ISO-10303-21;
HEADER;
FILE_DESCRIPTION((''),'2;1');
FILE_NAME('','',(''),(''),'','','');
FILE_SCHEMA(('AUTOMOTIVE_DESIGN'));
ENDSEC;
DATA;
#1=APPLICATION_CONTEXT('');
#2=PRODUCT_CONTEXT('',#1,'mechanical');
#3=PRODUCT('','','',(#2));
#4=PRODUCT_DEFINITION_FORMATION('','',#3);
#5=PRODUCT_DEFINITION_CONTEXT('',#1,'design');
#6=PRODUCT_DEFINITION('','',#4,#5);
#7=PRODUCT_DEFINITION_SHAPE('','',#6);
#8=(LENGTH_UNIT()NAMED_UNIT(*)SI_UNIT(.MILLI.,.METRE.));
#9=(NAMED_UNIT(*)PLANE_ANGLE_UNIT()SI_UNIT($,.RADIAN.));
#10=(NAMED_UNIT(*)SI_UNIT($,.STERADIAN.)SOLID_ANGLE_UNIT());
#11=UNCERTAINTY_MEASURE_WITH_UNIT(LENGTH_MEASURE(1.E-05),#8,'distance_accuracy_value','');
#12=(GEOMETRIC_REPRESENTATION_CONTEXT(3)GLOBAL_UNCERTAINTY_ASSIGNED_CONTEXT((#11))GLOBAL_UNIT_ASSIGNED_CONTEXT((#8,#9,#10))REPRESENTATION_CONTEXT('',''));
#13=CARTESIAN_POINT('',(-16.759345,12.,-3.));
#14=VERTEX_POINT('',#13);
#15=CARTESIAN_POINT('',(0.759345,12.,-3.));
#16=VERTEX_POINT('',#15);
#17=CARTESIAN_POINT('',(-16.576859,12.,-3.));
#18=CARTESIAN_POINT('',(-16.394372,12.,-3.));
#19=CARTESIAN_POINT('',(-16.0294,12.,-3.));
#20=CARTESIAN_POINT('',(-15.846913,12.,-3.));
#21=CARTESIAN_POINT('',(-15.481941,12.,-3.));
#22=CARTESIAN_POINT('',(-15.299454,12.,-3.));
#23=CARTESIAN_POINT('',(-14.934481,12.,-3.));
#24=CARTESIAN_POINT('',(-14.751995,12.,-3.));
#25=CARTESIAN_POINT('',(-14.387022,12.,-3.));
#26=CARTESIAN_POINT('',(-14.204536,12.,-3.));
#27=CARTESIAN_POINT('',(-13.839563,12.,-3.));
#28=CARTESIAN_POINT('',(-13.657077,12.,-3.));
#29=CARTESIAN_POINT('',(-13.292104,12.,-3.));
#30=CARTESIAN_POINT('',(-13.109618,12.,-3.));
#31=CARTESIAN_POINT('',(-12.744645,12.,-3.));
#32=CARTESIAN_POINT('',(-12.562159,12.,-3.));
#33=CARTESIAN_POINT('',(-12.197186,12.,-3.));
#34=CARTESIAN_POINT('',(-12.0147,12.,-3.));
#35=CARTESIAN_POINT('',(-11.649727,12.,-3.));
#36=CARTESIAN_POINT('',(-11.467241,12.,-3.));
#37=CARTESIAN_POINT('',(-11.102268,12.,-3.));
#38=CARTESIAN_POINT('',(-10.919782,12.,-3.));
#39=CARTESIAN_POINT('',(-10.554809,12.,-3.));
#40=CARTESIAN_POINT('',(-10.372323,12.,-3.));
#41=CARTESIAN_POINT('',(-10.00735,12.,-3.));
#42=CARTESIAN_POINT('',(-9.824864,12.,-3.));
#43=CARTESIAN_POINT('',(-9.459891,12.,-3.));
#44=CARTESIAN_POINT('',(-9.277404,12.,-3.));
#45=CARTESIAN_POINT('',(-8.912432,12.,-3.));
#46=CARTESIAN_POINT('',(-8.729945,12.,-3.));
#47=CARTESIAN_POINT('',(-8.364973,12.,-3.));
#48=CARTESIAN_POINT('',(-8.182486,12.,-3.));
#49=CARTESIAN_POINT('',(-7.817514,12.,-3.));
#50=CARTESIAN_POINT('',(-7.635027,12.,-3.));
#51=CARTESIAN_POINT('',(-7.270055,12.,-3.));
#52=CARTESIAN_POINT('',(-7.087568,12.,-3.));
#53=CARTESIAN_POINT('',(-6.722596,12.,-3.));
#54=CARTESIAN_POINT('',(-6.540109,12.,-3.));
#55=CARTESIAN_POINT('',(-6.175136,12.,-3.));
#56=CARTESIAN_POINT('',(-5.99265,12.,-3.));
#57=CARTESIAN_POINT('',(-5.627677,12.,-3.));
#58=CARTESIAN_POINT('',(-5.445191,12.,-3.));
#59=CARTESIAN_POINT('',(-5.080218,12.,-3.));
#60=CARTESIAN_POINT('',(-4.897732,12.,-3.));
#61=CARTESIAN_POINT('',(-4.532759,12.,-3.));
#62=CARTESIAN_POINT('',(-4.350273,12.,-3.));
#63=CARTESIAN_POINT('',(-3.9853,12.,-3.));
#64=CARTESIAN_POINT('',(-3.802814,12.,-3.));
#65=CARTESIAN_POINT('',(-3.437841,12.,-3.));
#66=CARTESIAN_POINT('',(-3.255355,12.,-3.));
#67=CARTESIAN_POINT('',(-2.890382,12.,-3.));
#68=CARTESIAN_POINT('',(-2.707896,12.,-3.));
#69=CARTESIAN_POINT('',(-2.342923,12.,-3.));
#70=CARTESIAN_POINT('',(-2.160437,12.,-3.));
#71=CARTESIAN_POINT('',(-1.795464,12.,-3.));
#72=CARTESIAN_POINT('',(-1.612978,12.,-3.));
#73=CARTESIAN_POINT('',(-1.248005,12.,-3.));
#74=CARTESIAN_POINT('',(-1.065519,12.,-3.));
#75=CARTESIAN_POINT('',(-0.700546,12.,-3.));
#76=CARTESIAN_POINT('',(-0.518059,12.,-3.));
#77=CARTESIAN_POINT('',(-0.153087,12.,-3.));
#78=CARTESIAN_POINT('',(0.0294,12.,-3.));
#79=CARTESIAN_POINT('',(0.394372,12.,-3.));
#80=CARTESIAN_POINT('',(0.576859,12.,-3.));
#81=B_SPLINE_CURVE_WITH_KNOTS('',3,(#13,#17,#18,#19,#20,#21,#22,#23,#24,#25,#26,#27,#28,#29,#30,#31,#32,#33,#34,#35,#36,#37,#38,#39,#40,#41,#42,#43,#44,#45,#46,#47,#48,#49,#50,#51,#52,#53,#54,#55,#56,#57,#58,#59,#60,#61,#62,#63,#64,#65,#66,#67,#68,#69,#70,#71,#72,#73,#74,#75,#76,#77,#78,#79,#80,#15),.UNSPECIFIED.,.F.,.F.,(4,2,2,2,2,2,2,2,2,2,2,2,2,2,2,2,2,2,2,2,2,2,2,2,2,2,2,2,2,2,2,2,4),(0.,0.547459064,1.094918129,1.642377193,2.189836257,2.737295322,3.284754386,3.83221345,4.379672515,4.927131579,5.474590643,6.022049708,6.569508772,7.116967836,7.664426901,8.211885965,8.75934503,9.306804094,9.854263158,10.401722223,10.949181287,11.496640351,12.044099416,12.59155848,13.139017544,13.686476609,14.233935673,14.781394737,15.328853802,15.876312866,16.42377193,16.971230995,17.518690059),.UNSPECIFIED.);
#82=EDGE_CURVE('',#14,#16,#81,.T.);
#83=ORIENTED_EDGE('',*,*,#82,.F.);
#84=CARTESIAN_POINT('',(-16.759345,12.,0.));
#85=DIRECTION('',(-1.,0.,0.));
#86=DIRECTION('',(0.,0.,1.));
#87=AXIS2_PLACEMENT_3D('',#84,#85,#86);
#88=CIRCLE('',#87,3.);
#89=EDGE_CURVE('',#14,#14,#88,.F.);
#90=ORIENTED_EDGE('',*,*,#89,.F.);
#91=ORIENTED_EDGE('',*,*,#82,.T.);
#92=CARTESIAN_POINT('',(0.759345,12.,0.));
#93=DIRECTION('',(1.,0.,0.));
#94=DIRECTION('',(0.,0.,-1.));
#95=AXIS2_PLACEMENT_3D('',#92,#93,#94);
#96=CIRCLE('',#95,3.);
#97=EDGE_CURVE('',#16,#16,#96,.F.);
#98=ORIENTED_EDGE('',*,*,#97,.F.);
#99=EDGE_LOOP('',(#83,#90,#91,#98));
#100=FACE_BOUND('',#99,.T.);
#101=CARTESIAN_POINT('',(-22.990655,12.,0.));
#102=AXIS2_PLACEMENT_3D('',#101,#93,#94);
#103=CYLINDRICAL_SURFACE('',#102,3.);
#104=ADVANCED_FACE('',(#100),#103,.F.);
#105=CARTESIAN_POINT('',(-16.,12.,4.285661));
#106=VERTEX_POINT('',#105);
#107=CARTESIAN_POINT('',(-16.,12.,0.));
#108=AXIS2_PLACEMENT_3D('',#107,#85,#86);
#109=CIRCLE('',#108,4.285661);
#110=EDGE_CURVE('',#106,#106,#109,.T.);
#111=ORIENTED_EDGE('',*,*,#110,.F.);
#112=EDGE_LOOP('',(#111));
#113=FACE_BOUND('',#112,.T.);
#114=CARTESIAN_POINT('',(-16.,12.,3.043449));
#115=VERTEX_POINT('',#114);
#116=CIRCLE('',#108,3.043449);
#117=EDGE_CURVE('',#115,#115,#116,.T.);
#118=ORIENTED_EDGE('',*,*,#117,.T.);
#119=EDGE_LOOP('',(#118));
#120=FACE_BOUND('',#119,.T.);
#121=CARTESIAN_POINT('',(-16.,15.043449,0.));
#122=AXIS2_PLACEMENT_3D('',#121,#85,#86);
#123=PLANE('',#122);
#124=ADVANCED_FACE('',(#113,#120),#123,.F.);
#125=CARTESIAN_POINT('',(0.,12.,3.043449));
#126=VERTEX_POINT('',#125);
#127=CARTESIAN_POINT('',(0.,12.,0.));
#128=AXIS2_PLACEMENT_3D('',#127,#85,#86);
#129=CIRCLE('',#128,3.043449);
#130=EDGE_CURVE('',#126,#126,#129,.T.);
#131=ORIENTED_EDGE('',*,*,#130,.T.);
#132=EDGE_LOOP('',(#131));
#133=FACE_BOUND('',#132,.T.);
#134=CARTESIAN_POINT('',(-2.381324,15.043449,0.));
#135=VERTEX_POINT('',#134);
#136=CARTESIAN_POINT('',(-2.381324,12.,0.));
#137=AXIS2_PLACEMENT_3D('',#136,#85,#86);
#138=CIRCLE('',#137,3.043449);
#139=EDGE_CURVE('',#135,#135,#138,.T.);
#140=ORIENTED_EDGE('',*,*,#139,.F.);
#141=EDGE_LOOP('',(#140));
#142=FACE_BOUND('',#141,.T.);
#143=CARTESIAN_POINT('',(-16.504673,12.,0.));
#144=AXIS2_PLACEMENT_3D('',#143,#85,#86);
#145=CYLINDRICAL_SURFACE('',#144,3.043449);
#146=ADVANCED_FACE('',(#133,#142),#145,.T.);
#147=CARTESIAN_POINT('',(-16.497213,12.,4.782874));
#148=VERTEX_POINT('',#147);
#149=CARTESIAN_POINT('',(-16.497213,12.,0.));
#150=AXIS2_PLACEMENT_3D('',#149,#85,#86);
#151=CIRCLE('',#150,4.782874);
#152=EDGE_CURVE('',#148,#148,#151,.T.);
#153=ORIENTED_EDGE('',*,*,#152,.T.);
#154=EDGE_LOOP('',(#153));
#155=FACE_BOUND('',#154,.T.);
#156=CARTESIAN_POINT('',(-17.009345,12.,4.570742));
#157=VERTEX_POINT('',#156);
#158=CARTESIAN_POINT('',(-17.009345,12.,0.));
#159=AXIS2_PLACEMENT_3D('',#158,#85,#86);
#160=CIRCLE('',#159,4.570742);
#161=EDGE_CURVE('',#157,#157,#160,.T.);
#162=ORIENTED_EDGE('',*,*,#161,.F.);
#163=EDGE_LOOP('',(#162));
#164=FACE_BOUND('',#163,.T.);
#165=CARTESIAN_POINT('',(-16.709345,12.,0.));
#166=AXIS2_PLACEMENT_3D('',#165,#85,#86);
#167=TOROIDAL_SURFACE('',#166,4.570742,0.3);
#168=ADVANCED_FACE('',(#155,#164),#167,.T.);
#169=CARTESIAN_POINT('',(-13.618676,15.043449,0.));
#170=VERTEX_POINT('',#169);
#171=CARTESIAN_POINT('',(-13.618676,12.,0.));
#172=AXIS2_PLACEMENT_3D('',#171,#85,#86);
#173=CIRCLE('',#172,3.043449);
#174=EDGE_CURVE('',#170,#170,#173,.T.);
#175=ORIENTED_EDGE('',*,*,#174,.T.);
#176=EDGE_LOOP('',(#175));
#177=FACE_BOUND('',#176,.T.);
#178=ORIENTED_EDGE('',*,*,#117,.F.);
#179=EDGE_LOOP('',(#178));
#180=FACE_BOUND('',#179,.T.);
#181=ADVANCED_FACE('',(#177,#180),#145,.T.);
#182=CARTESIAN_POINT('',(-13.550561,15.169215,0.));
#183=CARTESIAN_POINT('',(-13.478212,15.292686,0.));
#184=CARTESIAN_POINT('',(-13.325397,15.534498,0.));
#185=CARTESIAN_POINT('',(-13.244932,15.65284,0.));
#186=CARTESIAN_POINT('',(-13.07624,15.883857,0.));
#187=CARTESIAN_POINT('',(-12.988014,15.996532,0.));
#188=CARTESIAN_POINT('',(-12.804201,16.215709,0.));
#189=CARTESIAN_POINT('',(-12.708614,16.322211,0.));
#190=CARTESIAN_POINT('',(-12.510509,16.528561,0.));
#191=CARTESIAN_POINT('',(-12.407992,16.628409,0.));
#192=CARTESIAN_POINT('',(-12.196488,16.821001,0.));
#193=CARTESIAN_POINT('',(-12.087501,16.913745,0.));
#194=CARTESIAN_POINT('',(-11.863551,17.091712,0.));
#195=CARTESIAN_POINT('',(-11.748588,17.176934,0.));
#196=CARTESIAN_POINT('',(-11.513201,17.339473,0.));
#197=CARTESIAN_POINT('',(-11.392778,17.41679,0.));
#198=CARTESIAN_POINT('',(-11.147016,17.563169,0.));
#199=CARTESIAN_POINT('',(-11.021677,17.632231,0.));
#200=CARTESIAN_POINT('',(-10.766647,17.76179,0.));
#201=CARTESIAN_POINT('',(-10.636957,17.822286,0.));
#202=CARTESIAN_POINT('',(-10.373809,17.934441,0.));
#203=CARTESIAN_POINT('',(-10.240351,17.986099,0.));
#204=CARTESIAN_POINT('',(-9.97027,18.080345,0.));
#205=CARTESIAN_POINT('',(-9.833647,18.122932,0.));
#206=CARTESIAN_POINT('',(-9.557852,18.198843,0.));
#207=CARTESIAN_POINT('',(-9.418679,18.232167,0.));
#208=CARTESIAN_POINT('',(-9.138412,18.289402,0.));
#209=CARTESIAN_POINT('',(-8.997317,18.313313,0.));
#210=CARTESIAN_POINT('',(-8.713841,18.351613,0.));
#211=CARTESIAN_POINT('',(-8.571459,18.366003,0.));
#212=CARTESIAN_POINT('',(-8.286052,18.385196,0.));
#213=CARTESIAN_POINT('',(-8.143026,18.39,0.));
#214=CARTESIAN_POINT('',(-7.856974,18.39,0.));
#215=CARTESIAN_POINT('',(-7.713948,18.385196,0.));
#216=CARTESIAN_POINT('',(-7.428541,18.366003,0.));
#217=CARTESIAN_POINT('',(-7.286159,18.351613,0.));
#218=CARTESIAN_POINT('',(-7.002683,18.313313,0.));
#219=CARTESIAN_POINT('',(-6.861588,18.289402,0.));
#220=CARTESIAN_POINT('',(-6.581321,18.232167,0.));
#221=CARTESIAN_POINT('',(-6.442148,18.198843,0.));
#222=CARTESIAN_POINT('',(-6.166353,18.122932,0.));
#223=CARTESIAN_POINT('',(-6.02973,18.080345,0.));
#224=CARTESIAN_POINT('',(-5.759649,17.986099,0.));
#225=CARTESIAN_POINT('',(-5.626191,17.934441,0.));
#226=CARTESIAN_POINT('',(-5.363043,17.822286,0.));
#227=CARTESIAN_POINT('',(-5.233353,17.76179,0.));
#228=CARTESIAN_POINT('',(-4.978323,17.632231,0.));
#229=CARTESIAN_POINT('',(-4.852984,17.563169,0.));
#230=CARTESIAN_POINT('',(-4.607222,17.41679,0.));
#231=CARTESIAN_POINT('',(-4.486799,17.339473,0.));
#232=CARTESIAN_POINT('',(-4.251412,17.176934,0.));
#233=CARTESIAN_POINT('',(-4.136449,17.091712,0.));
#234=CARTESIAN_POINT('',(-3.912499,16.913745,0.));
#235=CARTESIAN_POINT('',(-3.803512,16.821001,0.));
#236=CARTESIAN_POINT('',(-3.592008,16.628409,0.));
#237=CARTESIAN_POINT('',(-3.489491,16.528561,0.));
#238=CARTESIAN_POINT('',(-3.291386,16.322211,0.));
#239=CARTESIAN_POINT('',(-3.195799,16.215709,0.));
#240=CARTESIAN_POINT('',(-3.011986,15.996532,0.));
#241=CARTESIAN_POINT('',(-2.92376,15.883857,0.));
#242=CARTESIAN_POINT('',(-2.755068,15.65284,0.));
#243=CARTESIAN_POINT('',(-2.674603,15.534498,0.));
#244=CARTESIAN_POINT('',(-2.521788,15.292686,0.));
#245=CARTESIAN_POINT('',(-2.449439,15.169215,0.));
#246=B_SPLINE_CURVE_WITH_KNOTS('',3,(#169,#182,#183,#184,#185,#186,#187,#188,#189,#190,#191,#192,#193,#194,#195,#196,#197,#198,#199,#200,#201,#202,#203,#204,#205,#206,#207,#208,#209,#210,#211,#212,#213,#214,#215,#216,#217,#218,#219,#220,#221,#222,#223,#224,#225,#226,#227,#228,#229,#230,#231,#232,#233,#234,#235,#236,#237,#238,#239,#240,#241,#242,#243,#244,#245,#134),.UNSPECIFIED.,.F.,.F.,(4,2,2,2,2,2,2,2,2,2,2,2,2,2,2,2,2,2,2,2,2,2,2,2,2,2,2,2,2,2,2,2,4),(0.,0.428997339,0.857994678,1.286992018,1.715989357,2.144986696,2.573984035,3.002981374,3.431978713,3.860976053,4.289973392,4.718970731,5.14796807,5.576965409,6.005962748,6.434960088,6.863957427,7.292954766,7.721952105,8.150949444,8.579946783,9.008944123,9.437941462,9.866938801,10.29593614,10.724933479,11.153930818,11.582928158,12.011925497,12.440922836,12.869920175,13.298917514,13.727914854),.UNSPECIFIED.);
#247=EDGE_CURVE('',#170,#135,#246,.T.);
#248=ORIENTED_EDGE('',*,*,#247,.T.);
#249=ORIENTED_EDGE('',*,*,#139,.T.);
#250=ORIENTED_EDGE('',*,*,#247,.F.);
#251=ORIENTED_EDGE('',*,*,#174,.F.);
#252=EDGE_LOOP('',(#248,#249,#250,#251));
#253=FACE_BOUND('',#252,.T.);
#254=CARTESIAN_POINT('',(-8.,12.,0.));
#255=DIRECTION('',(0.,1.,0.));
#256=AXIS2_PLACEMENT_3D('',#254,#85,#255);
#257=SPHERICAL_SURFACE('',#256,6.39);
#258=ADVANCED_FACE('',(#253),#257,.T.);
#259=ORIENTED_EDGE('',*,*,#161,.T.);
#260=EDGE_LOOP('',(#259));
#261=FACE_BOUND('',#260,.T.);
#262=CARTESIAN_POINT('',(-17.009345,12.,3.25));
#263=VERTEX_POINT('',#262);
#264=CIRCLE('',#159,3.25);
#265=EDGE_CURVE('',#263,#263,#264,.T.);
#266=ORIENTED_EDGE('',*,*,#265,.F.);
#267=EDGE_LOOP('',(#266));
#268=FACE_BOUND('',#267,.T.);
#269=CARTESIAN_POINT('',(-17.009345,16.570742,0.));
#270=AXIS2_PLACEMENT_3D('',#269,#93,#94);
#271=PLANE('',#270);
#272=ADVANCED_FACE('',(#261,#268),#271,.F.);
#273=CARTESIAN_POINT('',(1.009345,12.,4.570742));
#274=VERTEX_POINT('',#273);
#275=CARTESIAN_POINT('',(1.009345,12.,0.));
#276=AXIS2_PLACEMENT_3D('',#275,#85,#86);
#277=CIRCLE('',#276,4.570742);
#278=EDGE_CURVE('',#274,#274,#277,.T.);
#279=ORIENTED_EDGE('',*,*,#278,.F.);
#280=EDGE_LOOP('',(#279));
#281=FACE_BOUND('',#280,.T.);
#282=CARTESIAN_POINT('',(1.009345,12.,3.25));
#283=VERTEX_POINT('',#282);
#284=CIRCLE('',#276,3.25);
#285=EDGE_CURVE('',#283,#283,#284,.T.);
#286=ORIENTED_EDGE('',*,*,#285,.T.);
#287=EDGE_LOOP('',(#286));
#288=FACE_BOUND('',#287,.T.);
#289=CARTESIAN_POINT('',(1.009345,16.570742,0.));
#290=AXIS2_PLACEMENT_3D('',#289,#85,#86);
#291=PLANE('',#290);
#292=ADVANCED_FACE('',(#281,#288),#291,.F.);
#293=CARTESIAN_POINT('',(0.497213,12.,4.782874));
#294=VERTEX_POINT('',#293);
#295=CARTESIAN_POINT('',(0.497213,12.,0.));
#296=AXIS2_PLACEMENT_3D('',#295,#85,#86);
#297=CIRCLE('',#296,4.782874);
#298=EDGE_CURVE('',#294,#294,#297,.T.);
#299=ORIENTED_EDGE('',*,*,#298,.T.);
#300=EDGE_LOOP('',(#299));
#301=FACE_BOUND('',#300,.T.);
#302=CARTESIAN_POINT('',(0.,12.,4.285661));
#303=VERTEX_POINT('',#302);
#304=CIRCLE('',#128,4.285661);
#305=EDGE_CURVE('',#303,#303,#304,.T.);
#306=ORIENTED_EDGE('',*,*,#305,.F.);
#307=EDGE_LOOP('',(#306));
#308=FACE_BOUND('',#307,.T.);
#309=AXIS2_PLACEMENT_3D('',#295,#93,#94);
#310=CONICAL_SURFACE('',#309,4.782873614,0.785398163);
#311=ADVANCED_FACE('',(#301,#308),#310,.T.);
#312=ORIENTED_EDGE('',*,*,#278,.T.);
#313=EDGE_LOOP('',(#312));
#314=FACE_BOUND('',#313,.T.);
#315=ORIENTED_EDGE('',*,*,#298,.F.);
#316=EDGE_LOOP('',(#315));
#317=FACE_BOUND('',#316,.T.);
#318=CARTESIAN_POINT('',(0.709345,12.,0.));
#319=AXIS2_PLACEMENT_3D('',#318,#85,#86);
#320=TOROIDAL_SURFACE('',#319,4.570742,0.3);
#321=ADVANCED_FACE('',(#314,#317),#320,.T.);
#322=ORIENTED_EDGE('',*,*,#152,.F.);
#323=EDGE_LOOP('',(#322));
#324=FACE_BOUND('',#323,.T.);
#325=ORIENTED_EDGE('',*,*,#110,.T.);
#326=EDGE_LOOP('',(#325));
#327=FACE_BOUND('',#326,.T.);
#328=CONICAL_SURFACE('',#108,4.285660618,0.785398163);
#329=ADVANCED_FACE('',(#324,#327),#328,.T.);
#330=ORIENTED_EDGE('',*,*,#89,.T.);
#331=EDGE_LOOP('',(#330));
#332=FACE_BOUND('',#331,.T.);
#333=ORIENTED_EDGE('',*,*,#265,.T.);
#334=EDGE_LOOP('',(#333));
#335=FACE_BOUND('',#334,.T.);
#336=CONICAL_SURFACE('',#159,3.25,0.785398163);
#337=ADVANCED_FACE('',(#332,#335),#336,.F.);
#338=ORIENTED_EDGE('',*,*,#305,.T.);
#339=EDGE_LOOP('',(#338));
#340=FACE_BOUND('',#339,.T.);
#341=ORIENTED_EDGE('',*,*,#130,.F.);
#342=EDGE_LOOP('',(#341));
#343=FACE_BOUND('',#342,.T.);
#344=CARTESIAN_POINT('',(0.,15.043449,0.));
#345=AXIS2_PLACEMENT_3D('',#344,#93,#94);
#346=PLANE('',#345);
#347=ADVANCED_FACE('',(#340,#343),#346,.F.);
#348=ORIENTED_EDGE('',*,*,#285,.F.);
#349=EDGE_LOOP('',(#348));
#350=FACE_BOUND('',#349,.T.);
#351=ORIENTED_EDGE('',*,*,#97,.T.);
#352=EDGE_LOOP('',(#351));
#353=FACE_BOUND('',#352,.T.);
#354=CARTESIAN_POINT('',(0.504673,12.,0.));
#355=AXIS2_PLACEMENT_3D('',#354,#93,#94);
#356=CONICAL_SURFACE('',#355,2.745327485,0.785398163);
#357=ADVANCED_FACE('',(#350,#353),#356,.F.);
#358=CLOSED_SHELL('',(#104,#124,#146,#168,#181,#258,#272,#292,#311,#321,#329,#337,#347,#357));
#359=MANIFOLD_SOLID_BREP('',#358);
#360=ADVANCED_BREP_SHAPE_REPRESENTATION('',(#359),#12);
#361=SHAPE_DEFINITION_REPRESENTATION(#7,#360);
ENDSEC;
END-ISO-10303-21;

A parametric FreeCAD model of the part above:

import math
import FreeCAD as App
import Part
import Sketcher

V = App.Vector

doc = App.newDocument("Part")
body = doc.addObject("PartDesign::Body", "Body")

# Sketch on XY plane
sketch1 = body.newObject("Sketcher::SketchObject", "Sketch")
sketch1.AttachmentSupport = (doc.getObject("XY_Plane"), [""])
sketch1.MapMode = "FlatFace"
sketch1.addGeometry([
    Part.LineSegment(V(-13.62, 15.04, 0), V(-16, 15.04, 0)),  # 0
    Part.LineSegment(V(-16, 15.04, 0), V(-16, 16.29, 0)),  # 1
    Part.LineSegment(V(-16, 16.29, 0), V(-16.5, 16.78, 0)),  # 2
    Part.ArcOfCircle(Part.Circle(V(-16.71, 16.57, 0), V(0, 0, 1), 0.3), math.radians(45), math.radians(180)),  # 3
    Part.LineSegment(V(-17.01, 16.57, 0), V(-17.01, 15.25, 0)),  # 4
    Part.LineSegment(V(-17.01, 15.25, 0), V(-16.5, 14.75, 0)),  # 5
    Part.LineSegment(V(-16.5, 14.75, 0), V(-16.5, 12, 0)),  # 6
    Part.LineSegment(V(-16.5, 12, 0), V(0.5, 12, 0)),  # 7
    Part.LineSegment(V(0.5, 12, 0), V(0.5, 14.75, 0)),  # 8
    Part.LineSegment(V(0.5, 14.75, 0), V(1.01, 15.25, 0)),  # 9
    Part.LineSegment(V(1.01, 15.25, 0), V(1.01, 16.57, 0)),  # 10
    Part.ArcOfCircle(Part.Circle(V(0.71, 16.57, 0), V(0, 0, 1), 0.3), math.radians(0), math.radians(135)),  # 11
    Part.LineSegment(V(0.5, 16.78, 0), V(0, 16.29, 0)),  # 12
    Part.LineSegment(V(0, 16.29, 0), V(0, 15.04, 0)),  # 13
    Part.LineSegment(V(0, 15.04, 0), V(-2.38, 15.04, 0)),  # 14
    Part.ArcOfCircle(Part.Circle(V(-8, 12, 0), V(0, 0, 1), 6.39), math.radians(28), math.radians(152)),  # 15
], False)
sketch1.addGeometry(Part.LineSegment(V(-17.01, 12, 0), V(1.01, 12, 0)), True)  # axis
sketch1.addConstraint([
    Sketcher.Constraint("Coincident", 0, 2, 1, 1),
    Sketcher.Constraint("Coincident", 1, 2, 2, 1),
    Sketcher.Constraint("Tangent", 2, 2, 3, 1),
    Sketcher.Constraint("Tangent", 3, 2, 4, 1),
    Sketcher.Constraint("Coincident", 4, 2, 5, 1),
    Sketcher.Constraint("Coincident", 5, 2, 6, 1),
    Sketcher.Constraint("Coincident", 6, 2, 7, 1),
    Sketcher.Constraint("Coincident", 7, 2, 8, 1),
    Sketcher.Constraint("Coincident", 8, 2, 9, 1),
    Sketcher.Constraint("Coincident", 9, 2, 10, 1),
    Sketcher.Constraint("Tangent", 10, 2, 11, 1),
    Sketcher.Constraint("Tangent", 11, 2, 12, 1),
    Sketcher.Constraint("Coincident", 12, 2, 13, 1),
    Sketcher.Constraint("Coincident", 13, 2, 14, 1),
    Sketcher.Constraint("Coincident", 14, 2, 15, 1),
    Sketcher.Constraint("Coincident", 15, 2, 0, 1),
    Sketcher.Constraint("Horizontal", 0),
    Sketcher.Constraint("Vertical", 1),
    Sketcher.Constraint("Vertical", 4),
    Sketcher.Constraint("Vertical", 6),
    Sketcher.Constraint("Horizontal", 7),
    Sketcher.Constraint("Vertical", 8),
    Sketcher.Constraint("Vertical", 10),
    Sketcher.Constraint("Vertical", 13),
    Sketcher.Constraint("Horizontal", 14),
    Sketcher.Constraint("Horizontal", 16),
    Sketcher.Constraint("Equal", 3, 11),
    Sketcher.Constraint("PointOnObject", 12, 2, -2),
    Sketcher.Constraint("Parallel", 2, 5),
    Sketcher.Constraint("Perpendicular", 5, 9),
    Sketcher.Constraint("Parallel", 9, 12),
    Sketcher.Constraint("Horizontal", 3, 3, 11, 3),
    Sketcher.Constraint("Horizontal", 15, 3, 6, 2),
    Sketcher.Constraint("Horizontal", 5, 2, 8, 2),
    Sketcher.Constraint("Horizontal", 4, 2, 9, 2),
    Sketcher.Constraint("Horizontal", 2, 2, 11, 2),
    Sketcher.Constraint("Horizontal", 1, 2, 12, 2),
    Sketcher.Constraint("Horizontal", 0, 2, 13, 2),
    Sketcher.Constraint("Horizontal", 7, 2, 16, 1),
    Sketcher.Constraint("Vertical", 4, 2, 16, 1),
    Sketcher.Constraint("Vertical", 10, 2, 16, 2),
    Sketcher.Constraint("Equal", 0, 14),
    Sketcher.Constraint("Radius", 3, 0.3),
    Sketcher.Constraint("Radius", 15, 6.39),
    Sketcher.Constraint("DistanceX", 15, 3, -1, 1, 8.0),
    Sketcher.Constraint("DistanceY", -1, 1, 15, 3, 12.0),
    Sketcher.Constraint("DistanceY", -1, 1, 4, 2, 15.25),
    Sketcher.Constraint("DistanceX", 16, 1, 16, 2, 18.01869),
    Sketcher.Constraint("DistanceY", 1, 1, 1, 2, 1.242211),
    Sketcher.Constraint("DistanceY", 4, 2, 4, 1, 1.320742),
    Sketcher.Constraint("DistanceX", 7, 1, 7, 2, 17.009345),
])
revolution = body.newObject("PartDesign::Revolution", "Revolution")
revolution.Profile = sketch1
revolution.ReferenceAxis = (sketch1, ["Axis0"])
revolution.Angle = 360

# Sketch on YZ plane
sketch2 = body.newObject("Sketcher::SketchObject", "Sketch001")
sketch2.AttachmentSupport = (doc.getObject("YZ_Plane"), [""])
sketch2.MapMode = "FlatFace"
sketch2.AttachmentOffset = App.Placement(V(0, 0, 1.009345), App.Rotation())
sketch2.addGeometry(Part.Circle(V(12, 0, 0), V(0, 0, 1), 3), False)
sketch2.addConstraint([
    Sketcher.Constraint("PointOnObject", 0, 3, -1),
    Sketcher.Constraint("Diameter", 0, 6.0),
    Sketcher.Constraint("DistanceX", -1, 1, 0, 3, 12.0),
])
pocket1 = body.newObject("PartDesign::Pocket", "Pocket")
pocket1.Profile = sketch2
pocket1.Length = 24

doc.recompute()
